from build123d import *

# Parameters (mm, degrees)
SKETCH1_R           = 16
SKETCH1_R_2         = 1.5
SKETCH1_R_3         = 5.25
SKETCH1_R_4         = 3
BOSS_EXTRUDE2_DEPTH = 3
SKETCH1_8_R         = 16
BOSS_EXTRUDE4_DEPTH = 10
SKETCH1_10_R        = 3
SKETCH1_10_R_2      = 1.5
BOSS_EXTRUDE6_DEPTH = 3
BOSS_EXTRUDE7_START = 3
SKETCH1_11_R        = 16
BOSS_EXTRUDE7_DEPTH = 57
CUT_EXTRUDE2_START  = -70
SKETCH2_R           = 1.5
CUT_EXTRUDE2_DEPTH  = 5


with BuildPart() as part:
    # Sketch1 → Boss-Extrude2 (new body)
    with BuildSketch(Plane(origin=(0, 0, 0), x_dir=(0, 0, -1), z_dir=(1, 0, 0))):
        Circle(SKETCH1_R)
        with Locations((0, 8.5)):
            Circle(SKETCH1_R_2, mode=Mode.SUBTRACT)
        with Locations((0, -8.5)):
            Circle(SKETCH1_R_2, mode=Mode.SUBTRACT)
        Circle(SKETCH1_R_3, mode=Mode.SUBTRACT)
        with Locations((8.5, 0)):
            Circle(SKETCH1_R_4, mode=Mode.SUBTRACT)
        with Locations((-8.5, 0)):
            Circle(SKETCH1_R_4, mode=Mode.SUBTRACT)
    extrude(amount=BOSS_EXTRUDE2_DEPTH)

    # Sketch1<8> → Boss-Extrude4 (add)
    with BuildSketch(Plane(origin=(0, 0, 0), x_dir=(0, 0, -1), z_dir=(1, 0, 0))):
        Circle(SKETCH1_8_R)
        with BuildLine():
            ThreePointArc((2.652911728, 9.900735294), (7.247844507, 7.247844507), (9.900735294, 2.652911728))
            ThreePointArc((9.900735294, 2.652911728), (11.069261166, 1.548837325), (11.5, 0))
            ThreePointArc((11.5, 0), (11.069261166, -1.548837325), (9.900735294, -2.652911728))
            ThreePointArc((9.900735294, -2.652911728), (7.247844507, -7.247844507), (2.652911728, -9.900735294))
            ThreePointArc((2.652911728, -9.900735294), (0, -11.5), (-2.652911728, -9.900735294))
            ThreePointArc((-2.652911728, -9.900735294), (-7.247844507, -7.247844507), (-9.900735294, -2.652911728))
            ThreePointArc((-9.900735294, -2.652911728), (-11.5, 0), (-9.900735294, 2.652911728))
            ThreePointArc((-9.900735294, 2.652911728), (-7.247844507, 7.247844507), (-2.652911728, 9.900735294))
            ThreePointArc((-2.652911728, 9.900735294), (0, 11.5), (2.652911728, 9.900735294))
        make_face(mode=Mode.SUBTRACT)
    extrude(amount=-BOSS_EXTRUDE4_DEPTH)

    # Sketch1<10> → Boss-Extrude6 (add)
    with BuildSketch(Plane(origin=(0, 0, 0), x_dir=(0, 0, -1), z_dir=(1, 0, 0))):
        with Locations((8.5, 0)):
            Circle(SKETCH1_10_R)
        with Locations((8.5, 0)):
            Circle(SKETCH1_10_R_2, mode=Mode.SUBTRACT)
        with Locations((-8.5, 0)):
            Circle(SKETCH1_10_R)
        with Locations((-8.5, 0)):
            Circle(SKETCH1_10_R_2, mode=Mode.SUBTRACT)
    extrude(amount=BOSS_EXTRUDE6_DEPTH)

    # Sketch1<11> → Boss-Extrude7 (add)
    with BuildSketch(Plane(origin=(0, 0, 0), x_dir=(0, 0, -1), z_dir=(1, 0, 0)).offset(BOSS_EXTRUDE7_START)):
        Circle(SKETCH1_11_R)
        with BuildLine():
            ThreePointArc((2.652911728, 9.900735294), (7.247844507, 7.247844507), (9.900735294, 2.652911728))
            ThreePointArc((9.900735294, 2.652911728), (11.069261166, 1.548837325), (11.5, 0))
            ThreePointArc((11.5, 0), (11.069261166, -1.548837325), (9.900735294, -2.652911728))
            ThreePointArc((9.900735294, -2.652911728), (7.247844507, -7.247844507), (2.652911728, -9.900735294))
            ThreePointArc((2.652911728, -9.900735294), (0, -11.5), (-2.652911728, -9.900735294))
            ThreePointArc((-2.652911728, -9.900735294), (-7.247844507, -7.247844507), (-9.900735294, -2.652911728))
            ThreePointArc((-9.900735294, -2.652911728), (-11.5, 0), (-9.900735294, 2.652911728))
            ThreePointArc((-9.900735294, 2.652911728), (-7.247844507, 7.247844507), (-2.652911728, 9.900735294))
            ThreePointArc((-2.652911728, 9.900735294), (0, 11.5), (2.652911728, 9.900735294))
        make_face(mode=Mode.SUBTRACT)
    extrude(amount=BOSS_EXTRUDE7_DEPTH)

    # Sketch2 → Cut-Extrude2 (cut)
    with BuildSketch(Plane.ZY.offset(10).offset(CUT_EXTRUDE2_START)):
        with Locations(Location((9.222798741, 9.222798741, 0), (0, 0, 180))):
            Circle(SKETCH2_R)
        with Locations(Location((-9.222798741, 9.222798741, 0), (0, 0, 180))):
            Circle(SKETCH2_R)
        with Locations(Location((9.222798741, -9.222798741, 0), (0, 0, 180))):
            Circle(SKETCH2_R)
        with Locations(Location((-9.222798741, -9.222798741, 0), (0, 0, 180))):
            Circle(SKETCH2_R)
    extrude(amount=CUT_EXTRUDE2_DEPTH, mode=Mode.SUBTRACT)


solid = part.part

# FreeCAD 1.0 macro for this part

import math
import FreeCAD as App
import Part
import Sketcher
from FreeCAD import Vector
Q = App.Units.Quantity

doc = App.newDocument("Part")
body = doc.addObject("PartDesign::Body", "Body")

sketch1 = doc.addObject("Sketcher::SketchObject", "Sketch")
body.addObject(sketch1)
sketch1.AttachmentSupport = (doc.YZ_Plane, [""])
sketch1.MapMode = "FlatFace"
sketch1.addGeometry([
    Part.Circle(Vector(0, 0, 0), Vector(0, 0, 1), 16),
    Part.Circle(Vector(-8.5, 0, 0), Vector(0, 0, 1), 1.5),
    Part.Circle(Vector(0, 8.5, 0), Vector(0, 0, 1), 3),
    Part.Circle(Vector(0, 0, 0), Vector(0, 0, 1), 5.2),
    Part.Circle(Vector(0, -8.5, 0), Vector(0, 0, 1), 3),
    Part.Circle(Vector(8.5, 0, 0), Vector(0, 0, 1), 1.5),
], False)
sketch1.addConstraint([
    Sketcher.Constraint("Coincident", 0, 3, -1, 1),
    Sketcher.Constraint("Coincident", 3, 3, -1, 1),
    Sketcher.Constraint("Equal", 2, 4),
    Sketcher.Constraint("Equal", 1, 5),
    Sketcher.Constraint("Symmetric", 2, 3, 4, 3, -1, 1),
    Sketcher.Constraint("Symmetric", 1, 3, 5, 3, -1, 1),
    Sketcher.Constraint("PointOnObject", 1, 3, -1),
    Sketcher.Constraint("PointOnObject", 2, 3, -2),
    Sketcher.Constraint("Diameter", 0, Q("32 mm")),
    Sketcher.Constraint("Diameter", 1, Q("3 mm")),
    Sketcher.Constraint("Diameter", 2, Q("6 mm")),
    Sketcher.Constraint("Diameter", 3, Q("10.5 mm")),
    Sketcher.Constraint("DistanceY", 4, 3, 2, 3, Q("17 mm")),
    Sketcher.Constraint("DistanceX", 1, 3, 5, 3, Q("17 mm")),
])
pad1 = doc.addObject("PartDesign::Pad", "Pad")
body.addObject(pad1)
pad1.Profile = sketch1
pad1.Length = 3

sketch2 = doc.addObject("Sketcher::SketchObject", "Sketch001")
body.addObject(sketch2)
sketch2.AttachmentSupport = (doc.YZ_Plane, [""])
sketch2.MapMode = "FlatFace"
sketch2.addGeometry([
    Part.Circle(Vector(0, 0, 0), Vector(0, 0, 1), 16),
    Part.ArcOfCircle(Part.Circle(Vector(8.5, 0, 0), Vector(0, 0, 1), 3), math.radians(-62), math.radians(62)),
    Part.ArcOfCircle(Part.Circle(Vector(0, 0, 0), Vector(0, 0, 1), 10.3), math.radians(-75), math.radians(-15)),
    Part.ArcOfCircle(Part.Circle(Vector(0, -8.5, 0), Vector(0, 0, 1), 3), math.radians(-90), math.radians(-28)),
    Part.ArcOfCircle(Part.Circle(Vector(0, -8.5, 0), Vector(0, 0, 1), 3), math.radians(-152), math.radians(-90)),
    Part.ArcOfCircle(Part.Circle(Vector(0, 0, 0), Vector(0, 0, 1), 10.3), math.radians(-165), math.radians(-105)),
    Part.ArcOfCircle(Part.Circle(Vector(-8.5, 0, 0), Vector(0, 0, 1), 3), math.radians(118), math.radians(242)),
    Part.ArcOfCircle(Part.Circle(Vector(0, 0, 0), Vector(0, 0, 1), 10.3), math.radians(105), math.radians(165)),
    Part.ArcOfCircle(Part.Circle(Vector(0, 8.5, 0), Vector(0, 0, 1), 3), math.radians(28), math.radians(152)),
    Part.ArcOfCircle(Part.Circle(Vector(0, 0, 0), Vector(0, 0, 1), 10.3), math.radians(15), math.radians(75)),
], False)
sketch2.addConstraint([
    Sketcher.Constraint("Coincident", 1, 1, 2, 2),
    Sketcher.Constraint("Coincident", 2, 1, 3, 2),
    Sketcher.Constraint("Tangent", 3, 1, 4, 2),
    Sketcher.Constraint("Coincident", 4, 1, 5, 2),
    Sketcher.Constraint("Coincident", 5, 1, 6, 2),
    Sketcher.Constraint("Coincident", 6, 1, 7, 2),
    Sketcher.Constraint("Coincident", 7, 1, 8, 2),
    Sketcher.Constraint("Coincident", 8, 1, 9, 2),
    Sketcher.Constraint("Coincident", 9, 1, 1, 2),
    Sketcher.Constraint("Coincident", 0, 3, -1, 1),
    Sketcher.Constraint("Coincident", 2, 3, -1, 1),
    Sketcher.Constraint("Coincident", 5, 3, -1, 1),
    Sketcher.Constraint("Coincident", 7, 3, -1, 1),
    Sketcher.Constraint("Coincident", 9, 3, -1, 1),
    Sketcher.Constraint("Equal", 1, 3),
    Sketcher.Constraint("Equal", 3, 4),
    Sketcher.Constraint("Equal", 2, 5),
    Sketcher.Constraint("Equal", 4, 6),
    Sketcher.Constraint("Equal", 5, 7),
    Sketcher.Constraint("Equal", 6, 8),
    Sketcher.Constraint("Equal", 7, 9),
    Sketcher.Constraint("Symmetric", 1, 3, 6, 3, -1, 1),
    Sketcher.Constraint("Symmetric", 3, 3, 8, 3, -1, 1),
    Sketcher.Constraint("PointOnObject", 1, 3, -1),
    Sketcher.Constraint("PointOnObject", 3, 3, -2),
    Sketcher.Constraint("PointOnObject", 3, 1, -2),
    Sketcher.Constraint("Diameter", 0, Q("32 mm")),
    Sketcher.Constraint("Radius", 1, Q("3 mm")),
    Sketcher.Constraint("Radius", 2, Q("10.25 mm")),
    Sketcher.Constraint("DistanceX", -1, 1, 1, 3, Q("8.5 mm")),
    Sketcher.Constraint("DistanceY", 3, 3, -1, 1, Q("8.5 mm")),
])
pad2 = doc.addObject("PartDesign::Pad", "Pad001")
body.addObject(pad2)
pad2.Profile = sketch2
pad2.Length = 10
pad2.Reversed = True

sketch3 = doc.addObject("Sketcher::SketchObject", "Sketch002")
body.addObject(sketch3)
sketch3.AttachmentSupport = (doc.YZ_Plane, [""])
sketch3.MapMode = "FlatFace"
sketch3.addGeometry([
    Part.Circle(Vector(0, -8.5, 0), Vector(0, 0, 1), 3),
    Part.Circle(Vector(0, -8.5, 0), Vector(0, 0, 1), 1.5),
    Part.Circle(Vector(0, 8.5, 0), Vector(0, 0, 1), 3),
    Part.Circle(Vector(0, 8.5, 0), Vector(0, 0, 1), 1.5),
], False)
sketch3.addConstraint([
    Sketcher.Constraint("Coincident", 1, 3, 0, 3),
    Sketcher.Constraint("Coincident", 3, 3, 2, 3),
    Sketcher.Constraint("Equal", 0, 2),
    Sketcher.Constraint("Equal", 1, 3),
    Sketcher.Constraint("Symmetric", 0, 3, 2, 3, -1, 1),
    Sketcher.Constraint("PointOnObject", 0, 3, -2),
    Sketcher.Constraint("Diameter", 0, Q("6 mm")),
    Sketcher.Constraint("Diameter", 1, Q("3 mm")),
    Sketcher.Constraint("DistanceY", 0, 3, 2, 3, Q("17 mm")),
])
pad3 = doc.addObject("PartDesign::Pad", "Pad002")
body.addObject(pad3)
pad3.Profile = sketch3
pad3.Length = 3

sketch4 = doc.addObject("Sketcher::SketchObject", "Sketch003")
body.addObject(sketch4)
sketch4.AttachmentSupport = (doc.YZ_Plane, [""])
sketch4.MapMode = "FlatFace"
sketch4.AttachmentOffset = App.Placement(Vector(0, 0, 3), App.Rotation())
sketch4.addGeometry([
    Part.Circle(Vector(0, 0, 0), Vector(0, 0, 1), 16),
    Part.ArcOfCircle(Part.Circle(Vector(8.5, 0, 0), Vector(0, 0, 1), 3), math.radians(-62), math.radians(62)),
    Part.ArcOfCircle(Part.Circle(Vector(0, 0, 0), Vector(0, 0, 1), 10.3), math.radians(-75), math.radians(-15)),
    Part.ArcOfCircle(Part.Circle(Vector(0, -8.5, 0), Vector(0, 0, 1), 3), math.radians(-90), math.radians(-28)),
    Part.ArcOfCircle(Part.Circle(Vector(0, -8.5, 0), Vector(0, 0, 1), 3), math.radians(-152), math.radians(-90)),
    Part.ArcOfCircle(Part.Circle(Vector(0, 0, 0), Vector(0, 0, 1), 10.3), math.radians(-165), math.radians(-105)),
    Part.ArcOfCircle(Part.Circle(Vector(-8.5, 0, 0), Vector(0, 0, 1), 3), math.radians(118), math.radians(242)),
    Part.ArcOfCircle(Part.Circle(Vector(0, 0, 0), Vector(0, 0, 1), 10.3), math.radians(105), math.radians(165)),
    Part.ArcOfCircle(Part.Circle(Vector(0, 8.5, 0), Vector(0, 0, 1), 3), math.radians(28), math.radians(152)),
    Part.ArcOfCircle(Part.Circle(Vector(0, 0, 0), Vector(0, 0, 1), 10.3), math.radians(15), math.radians(75)),
], False)
sketch4.addConstraint([
    Sketcher.Constraint("Coincident", 1, 1, 2, 2),
    Sketcher.Constraint("Coincident", 2, 1, 3, 2),
    Sketcher.Constraint("Tangent", 3, 1, 4, 2),
    Sketcher.Constraint("Coincident", 4, 1, 5, 2),
    Sketcher.Constraint("Coincident", 5, 1, 6, 2),
    Sketcher.Constraint("Coincident", 6, 1, 7, 2),
    Sketcher.Constraint("Coincident", 7, 1, 8, 2),
    Sketcher.Constraint("Coincident", 8, 1, 9, 2),
    Sketcher.Constraint("Coincident", 9, 1, 1, 2),
    Sketcher.Constraint("Coincident", 0, 3, -1, 1),
    Sketcher.Constraint("Coincident", 2, 3, -1, 1),
    Sketcher.Constraint("Coincident", 5, 3, -1, 1),
    Sketcher.Constraint("Coincident", 7, 3, -1, 1),
    Sketcher.Constraint("Coincident", 9, 3, -1, 1),
    Sketcher.Constraint("Equal", 1, 3),
    Sketcher.Constraint("Equal", 3, 4),
    Sketcher.Constraint("Equal", 2, 5),
    Sketcher.Constraint("Equal", 4, 6),
    Sketcher.Constraint("Equal", 5, 7),
    Sketcher.Constraint("Equal", 6, 8),
    Sketcher.Constraint("Equal", 7, 9),
    Sketcher.Constraint("Symmetric", 1, 3, 6, 3, -1, 1),
    Sketcher.Constraint("Symmetric", 3, 3, 8, 3, -1, 1),
    Sketcher.Constraint("PointOnObject", 1, 3, -1),
    Sketcher.Constraint("PointOnObject", 3, 3, -2),
    Sketcher.Constraint("PointOnObject", 3, 1, -2),
    Sketcher.Constraint("Diameter", 0, Q("32 mm")),
    Sketcher.Constraint("Radius", 1, Q("3 mm")),
    Sketcher.Constraint("Radius", 2, Q("10.25 mm")),
    Sketcher.Constraint("DistanceX", -1, 1, 1, 3, Q("8.5 mm")),
    Sketcher.Constraint("DistanceY", 3, 3, -1, 1, Q("8.5 mm")),
])
pad4 = doc.addObject("PartDesign::Pad", "Pad003")
body.addObject(pad4)
pad4.Profile = sketch4
pad4.Length = 57

sketch5 = doc.addObject("Sketcher::SketchObject", "Sketch004")
body.addObject(sketch5)
sketch5.AttachmentSupport = (doc.YZ_Plane, [""])
sketch5.MapMode = "FlatFace"
sketch5.AttachmentOffset = App.Placement(Vector(0, 0, 60), App.Rotation())
sketch5.addGeometry([
    Part.Circle(Vector(9.2, 9.2, 0), Vector(0, 0, 1), 1.5),
    Part.Circle(Vector(9.2, -9.2, 0), Vector(0, 0, 1), 1.5),
    Part.Circle(Vector(-9.2, 9.2, 0), Vector(0, 0, 1), 1.5),
    Part.Circle(Vector(-9.2, -9.2, 0), Vector(0, 0, 1), 1.5),
], False)
sketch5.addConstraint([
    Sketcher.Constraint("Equal", 0, 1),
    Sketcher.Constraint("Equal", 1, 2),
    Sketcher.Constraint("Equal", 2, 3),
    Sketcher.Constraint("Symmetric", 1, 3, 2, 3, -1, 1),
    Sketcher.Constraint("Symmetric", 0, 3, 3, 3, -1, 1),
    Sketcher.Constraint("Symmetric", 0, 3, 2, 3, -2),
    Sketcher.Constraint("Diameter", 0, Q("3 mm")),
    Sketcher.Constraint("DistanceX", -1, 1, 0, 3, Q("9.222799 mm")),
    Sketcher.Constraint("DistanceY", -1, 1, 0, 3, Q("9.222799 mm")),
])
pocket1 = doc.addObject("PartDesign::Pocket", "Pocket")
body.addObject(pocket1)
pocket1.Profile = sketch5
pocket1.Length = 5

doc.recompute()
